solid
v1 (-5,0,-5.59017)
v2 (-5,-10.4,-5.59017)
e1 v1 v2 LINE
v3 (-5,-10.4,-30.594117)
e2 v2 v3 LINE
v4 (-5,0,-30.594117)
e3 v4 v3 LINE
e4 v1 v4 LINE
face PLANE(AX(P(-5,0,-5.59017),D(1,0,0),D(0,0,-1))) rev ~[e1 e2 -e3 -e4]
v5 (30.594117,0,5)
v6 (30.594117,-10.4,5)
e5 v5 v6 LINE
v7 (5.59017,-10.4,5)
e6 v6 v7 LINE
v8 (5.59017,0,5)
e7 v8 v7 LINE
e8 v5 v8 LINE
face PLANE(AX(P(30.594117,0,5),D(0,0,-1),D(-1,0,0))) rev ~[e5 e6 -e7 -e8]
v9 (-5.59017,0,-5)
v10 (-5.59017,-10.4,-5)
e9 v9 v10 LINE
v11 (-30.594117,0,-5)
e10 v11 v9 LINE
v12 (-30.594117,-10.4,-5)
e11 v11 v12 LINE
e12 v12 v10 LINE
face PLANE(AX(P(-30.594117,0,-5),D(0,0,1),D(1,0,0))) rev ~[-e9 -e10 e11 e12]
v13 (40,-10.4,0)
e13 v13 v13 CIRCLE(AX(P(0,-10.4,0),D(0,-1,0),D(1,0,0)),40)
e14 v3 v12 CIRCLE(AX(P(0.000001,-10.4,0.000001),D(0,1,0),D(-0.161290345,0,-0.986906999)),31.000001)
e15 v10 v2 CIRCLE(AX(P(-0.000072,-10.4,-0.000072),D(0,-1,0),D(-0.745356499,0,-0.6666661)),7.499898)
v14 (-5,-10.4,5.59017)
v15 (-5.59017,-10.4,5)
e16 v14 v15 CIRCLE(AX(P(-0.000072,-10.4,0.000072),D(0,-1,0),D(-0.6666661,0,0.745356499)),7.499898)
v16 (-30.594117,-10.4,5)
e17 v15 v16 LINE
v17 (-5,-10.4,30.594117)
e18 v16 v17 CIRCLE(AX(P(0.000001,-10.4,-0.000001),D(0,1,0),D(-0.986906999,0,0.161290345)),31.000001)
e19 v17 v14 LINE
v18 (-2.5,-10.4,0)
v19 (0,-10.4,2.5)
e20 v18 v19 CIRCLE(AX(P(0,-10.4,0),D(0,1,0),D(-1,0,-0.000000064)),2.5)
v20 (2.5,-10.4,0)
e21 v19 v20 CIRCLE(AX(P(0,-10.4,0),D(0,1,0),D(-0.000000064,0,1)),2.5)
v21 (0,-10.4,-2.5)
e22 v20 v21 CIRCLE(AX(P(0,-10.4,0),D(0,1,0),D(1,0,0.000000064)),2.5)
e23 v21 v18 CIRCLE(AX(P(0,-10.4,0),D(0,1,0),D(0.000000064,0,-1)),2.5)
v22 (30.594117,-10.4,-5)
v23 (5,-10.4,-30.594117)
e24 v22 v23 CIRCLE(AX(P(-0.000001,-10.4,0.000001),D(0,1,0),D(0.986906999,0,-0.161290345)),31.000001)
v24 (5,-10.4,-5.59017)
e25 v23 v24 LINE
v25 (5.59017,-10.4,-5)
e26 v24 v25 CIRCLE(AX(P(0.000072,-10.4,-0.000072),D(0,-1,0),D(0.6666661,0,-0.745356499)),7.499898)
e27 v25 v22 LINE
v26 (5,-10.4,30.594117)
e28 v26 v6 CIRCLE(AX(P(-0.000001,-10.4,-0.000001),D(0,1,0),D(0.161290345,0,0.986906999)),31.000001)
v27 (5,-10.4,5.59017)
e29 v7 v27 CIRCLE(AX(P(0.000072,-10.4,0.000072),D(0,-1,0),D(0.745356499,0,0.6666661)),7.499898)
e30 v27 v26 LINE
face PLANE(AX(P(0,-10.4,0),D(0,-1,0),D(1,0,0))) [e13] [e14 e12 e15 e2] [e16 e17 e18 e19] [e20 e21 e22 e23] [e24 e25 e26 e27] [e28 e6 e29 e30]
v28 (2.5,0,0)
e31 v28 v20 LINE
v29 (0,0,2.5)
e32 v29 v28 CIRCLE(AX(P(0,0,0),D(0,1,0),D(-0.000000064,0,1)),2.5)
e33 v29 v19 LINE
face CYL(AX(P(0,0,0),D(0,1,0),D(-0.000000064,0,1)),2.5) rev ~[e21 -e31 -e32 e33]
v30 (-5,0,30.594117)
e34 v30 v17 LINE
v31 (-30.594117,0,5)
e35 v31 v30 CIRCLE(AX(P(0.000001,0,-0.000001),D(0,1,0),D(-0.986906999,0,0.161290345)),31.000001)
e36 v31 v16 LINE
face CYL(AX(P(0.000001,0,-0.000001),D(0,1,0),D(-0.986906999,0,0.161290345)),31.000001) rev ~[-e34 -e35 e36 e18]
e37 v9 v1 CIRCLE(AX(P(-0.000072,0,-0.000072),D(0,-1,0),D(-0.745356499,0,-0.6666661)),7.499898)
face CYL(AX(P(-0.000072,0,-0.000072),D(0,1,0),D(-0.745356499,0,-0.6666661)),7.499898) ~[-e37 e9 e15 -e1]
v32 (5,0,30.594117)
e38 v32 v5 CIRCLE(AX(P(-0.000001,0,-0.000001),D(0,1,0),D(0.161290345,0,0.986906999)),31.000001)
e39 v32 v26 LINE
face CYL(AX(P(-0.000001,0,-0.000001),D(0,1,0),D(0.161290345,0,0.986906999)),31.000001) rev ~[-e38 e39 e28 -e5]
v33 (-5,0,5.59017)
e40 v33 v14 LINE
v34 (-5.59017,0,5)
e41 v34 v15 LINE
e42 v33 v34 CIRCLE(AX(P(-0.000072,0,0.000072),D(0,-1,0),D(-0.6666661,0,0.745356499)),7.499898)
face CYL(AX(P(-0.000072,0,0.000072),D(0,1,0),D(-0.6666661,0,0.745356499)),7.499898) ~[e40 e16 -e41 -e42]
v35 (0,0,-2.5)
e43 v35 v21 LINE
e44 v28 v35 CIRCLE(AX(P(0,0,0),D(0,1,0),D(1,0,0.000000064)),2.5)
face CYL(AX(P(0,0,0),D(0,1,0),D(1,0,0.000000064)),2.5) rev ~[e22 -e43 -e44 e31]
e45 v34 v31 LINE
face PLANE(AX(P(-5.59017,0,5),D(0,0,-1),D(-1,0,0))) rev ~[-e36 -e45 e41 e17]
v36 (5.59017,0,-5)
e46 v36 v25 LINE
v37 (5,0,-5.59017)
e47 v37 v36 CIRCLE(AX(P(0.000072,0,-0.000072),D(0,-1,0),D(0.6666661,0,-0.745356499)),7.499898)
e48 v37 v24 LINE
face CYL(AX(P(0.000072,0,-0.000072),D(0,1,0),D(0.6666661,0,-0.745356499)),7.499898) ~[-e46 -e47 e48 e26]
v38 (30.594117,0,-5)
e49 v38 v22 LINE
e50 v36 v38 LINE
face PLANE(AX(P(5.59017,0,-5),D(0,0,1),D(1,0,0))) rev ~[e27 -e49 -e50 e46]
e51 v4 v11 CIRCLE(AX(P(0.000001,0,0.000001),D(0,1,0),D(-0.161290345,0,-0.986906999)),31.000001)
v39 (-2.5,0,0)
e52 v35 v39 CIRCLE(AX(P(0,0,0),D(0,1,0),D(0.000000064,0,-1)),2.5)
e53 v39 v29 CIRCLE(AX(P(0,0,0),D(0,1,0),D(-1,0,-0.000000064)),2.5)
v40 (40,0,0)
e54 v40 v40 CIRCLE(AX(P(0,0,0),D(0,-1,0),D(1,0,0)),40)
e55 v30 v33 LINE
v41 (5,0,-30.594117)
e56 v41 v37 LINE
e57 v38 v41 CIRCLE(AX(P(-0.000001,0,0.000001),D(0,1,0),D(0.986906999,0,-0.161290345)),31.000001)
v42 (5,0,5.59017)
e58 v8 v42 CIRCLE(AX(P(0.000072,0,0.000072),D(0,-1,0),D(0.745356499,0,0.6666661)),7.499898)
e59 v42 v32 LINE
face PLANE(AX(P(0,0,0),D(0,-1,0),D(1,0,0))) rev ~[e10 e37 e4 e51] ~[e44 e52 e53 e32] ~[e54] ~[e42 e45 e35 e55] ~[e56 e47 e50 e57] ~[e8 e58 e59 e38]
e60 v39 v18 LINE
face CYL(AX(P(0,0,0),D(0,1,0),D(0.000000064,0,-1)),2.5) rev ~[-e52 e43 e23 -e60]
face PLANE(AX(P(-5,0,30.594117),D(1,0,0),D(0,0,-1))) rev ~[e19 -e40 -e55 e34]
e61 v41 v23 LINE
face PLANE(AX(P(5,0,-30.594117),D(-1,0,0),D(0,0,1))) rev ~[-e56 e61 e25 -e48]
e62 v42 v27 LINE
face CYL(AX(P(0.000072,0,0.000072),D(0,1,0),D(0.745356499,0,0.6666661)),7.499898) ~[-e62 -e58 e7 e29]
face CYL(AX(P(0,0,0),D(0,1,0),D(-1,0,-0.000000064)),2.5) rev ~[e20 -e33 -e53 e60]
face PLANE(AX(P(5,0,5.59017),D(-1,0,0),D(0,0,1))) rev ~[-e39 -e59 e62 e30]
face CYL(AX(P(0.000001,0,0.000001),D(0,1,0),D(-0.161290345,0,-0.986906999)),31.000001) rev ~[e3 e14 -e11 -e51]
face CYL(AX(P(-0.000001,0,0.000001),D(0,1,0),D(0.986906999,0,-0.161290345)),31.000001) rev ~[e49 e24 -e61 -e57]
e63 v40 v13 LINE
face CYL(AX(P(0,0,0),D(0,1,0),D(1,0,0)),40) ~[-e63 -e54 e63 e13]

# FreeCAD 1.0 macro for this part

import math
import FreeCAD as App
import Part
import Sketcher

V = App.Vector
Q = App.Units.Quantity

doc = App.newDocument("Part")
body = doc.addObject("PartDesign::Body", "Body")

sketch1 = doc.addObject("Sketcher::SketchObject", "Sketch")
body.addObject(sketch1)
sketch1.AttachmentSupport = (doc.XZ_Plane, [""])
sketch1.MapMode = "FlatFace"
sketch1.addGeometry(Part.Circle(V(0, 0, 0), V(0, 0, 1), 40), False)
sketch1.addGeometry(Part.LineSegment(V(-30.6, -5, 0), V(-5.6, -5, 0)), False)
sketch1.addGeometry(Part.ArcOfCircle(Part.Circle(V(0, 0, 0), V(0, 0, 1), 7.5), math.radians(-138.19), math.radians(-131.81)), False)
sketch1.addGeometry(Part.LineSegment(V(-5, -5.6, 0), V(-5, -30.6, 0)), False)
sketch1.addGeometry(Part.ArcOfCircle(Part.Circle(V(0, 0, 0), V(0, 0, 1), 31), math.radians(-171), math.radians(-99)), False)
sketch1.addGeometry(Part.ArcOfCircle(Part.Circle(V(0, 0, 0), V(0, 0, 1), 2.5), math.radians(90), math.radians(180)), False)
sketch1.addGeometry(Part.ArcOfCircle(Part.Circle(V(0, 0, 0), V(0, 0, 1), 2.5), math.radians(0), math.radians(90)), False)
sketch1.addGeometry(Part.ArcOfCircle(Part.Circle(V(0, 0, 0), V(0, 0, 1), 2.5), math.radians(-90), math.radians(0)), False)
sketch1.addGeometry(Part.ArcOfCircle(Part.Circle(V(0, 0, 0), V(0, 0, 1), 2.5), math.radians(180), math.radians(270)), False)
sketch1.addGeometry(Part.ArcOfCircle(Part.Circle(V(0, 0, 0), V(0, 0, 1), 31), math.radians(-81), math.radians(-9)), False)
sketch1.addGeometry(Part.LineSegment(V(5, -30.6, 0), V(5, -5.6, 0)), False)
sketch1.addGeometry(Part.ArcOfCircle(Part.Circle(V(0, 0, 0), V(0, 0, 1), 7.5), math.radians(-48.19), math.radians(-41.81)), False)
sketch1.addGeometry(Part.LineSegment(V(5.6, -5, 0), V(30.6, -5, 0)), False)
sketch1.addGeometry(Part.LineSegment(V(-5.6, 5, 0), V(-30.6, 5, 0)), False)
sketch1.addGeometry(Part.ArcOfCircle(Part.Circle(V(0, 0, 0), V(0, 0, 1), 31), math.radians(99), math.radians(171)), False)
sketch1.addGeometry(Part.LineSegment(V(-5, 30.6, 0), V(-5, 5.6, 0)), False)
sketch1.addGeometry(Part.ArcOfCircle(Part.Circle(V(0, 0, 0), V(0, 0, 1), 7.5), math.radians(131.81), math.radians(138.19)), False)
sketch1.addGeometry(Part.LineSegment(V(5, 5.6, 0), V(5, 30.6, 0)), False)
sketch1.addGeometry(Part.ArcOfCircle(Part.Circle(V(0, 0, 0), V(0, 0, 1), 31), math.radians(9), math.radians(81)), False)
sketch1.addGeometry(Part.LineSegment(V(30.6, 5, 0), V(5.6, 5, 0)), False)
sketch1.addGeometry(Part.ArcOfCircle(Part.Circle(V(0, 0, 0), V(0, 0, 1), 7.5), math.radians(41.81), math.radians(48.19)), False)
sketch1.addConstraint(Sketcher.Constraint("Coincident", 1, 2, 2, 1))
sketch1.addConstraint(Sketcher.Constraint("Coincident", 2, 2, 3, 1))
sketch1.addConstraint(Sketcher.Constraint("Coincident", 3, 2, 4, 2))
sketch1.addConstraint(Sketcher.Constraint("Coincident", 4, 1, 1, 1))
sketch1.addConstraint(Sketcher.Constraint("Tangent", 5, 1, 6, 2))
sketch1.addConstraint(Sketcher.Constraint("Tangent", 6, 1, 7, 2))
sketch1.addConstraint(Sketcher.Constraint("Tangent", 7, 1, 8, 2))
sketch1.addConstraint(Sketcher.Constraint("Tangent", 8, 1, 5, 2))
sketch1.addConstraint(Sketcher.Constraint("Coincident", 9, 1, 10, 1))
sketch1.addConstraint(Sketcher.Constraint("Coincident", 10, 2, 11, 1))
sketch1.addConstraint(Sketcher.Constraint("Coincident", 11, 2, 12, 1))
sketch1.addConstraint(Sketcher.Constraint("Coincident", 12, 2, 9, 2))
sketch1.addConstraint(Sketcher.Constraint("Coincident", 13, 2, 14, 2))
sketch1.addConstraint(Sketcher.Constraint("Coincident", 14, 1, 15, 1))
sketch1.addConstraint(Sketcher.Constraint("Coincident", 15, 2, 16, 1))
sketch1.addConstraint(Sketcher.Constraint("Coincident", 16, 2, 13, 1))
sketch1.addConstraint(Sketcher.Constraint("Coincident", 17, 2, 18, 2))
sketch1.addConstraint(Sketcher.Constraint("Coincident", 18, 1, 19, 1))
sketch1.addConstraint(Sketcher.Constraint("Coincident", 19, 2, 20, 1))
sketch1.addConstraint(Sketcher.Constraint("Coincident", 20, 2, 17, 1))
sketch1.addConstraint(Sketcher.Constraint("Horizontal", 1))
sketch1.addConstraint(Sketcher.Constraint("Vertical", 3))
sketch1.addConstraint(Sketcher.Constraint("Vertical", 10))
sketch1.addConstraint(Sketcher.Constraint("Horizontal", 12))
sketch1.addConstraint(Sketcher.Constraint("Horizontal", 13))
sketch1.addConstraint(Sketcher.Constraint("Vertical", 15))
sketch1.addConstraint(Sketcher.Constraint("Vertical", 17))
sketch1.addConstraint(Sketcher.Constraint("Horizontal", 19))
sketch1.addConstraint(Sketcher.Constraint("Coincident", 0, 3, -1, 1))
sketch1.addConstraint(Sketcher.Constraint("Coincident", 4, 3, -1, 1))
sketch1.addConstraint(Sketcher.Constraint("Coincident", 5, 3, -1, 1))
sketch1.addConstraint(Sketcher.Constraint("Coincident", 9, 3, -1, 1))
sketch1.addConstraint(Sketcher.Constraint("Coincident", 14, 3, -1, 1))
sketch1.addConstraint(Sketcher.Constraint("Coincident", 18, 3, -1, 1))
sketch1.addConstraint(Sketcher.Constraint("Equal", 5, 6))
sketch1.addConstraint(Sketcher.Constraint("Equal", 4, 9))
sketch1.addConstraint(Sketcher.Constraint("Equal", 2, 11))
sketch1.addConstraint(Sketcher.Constraint("Equal", 9, 14))
sketch1.addConstraint(Sketcher.Constraint("Equal", 11, 16))
sketch1.addConstraint(Sketcher.Constraint("Equal", 14, 18))
sketch1.addConstraint(Sketcher.Constraint("Equal", 16, 20))
sketch1.addConstraint(Sketcher.Constraint("Symmetric", 11, 3, 16, 3, -1, 1))
sketch1.addConstraint(Sketcher.Constraint("Symmetric", 2, 3, 20, 3, -1, 1))
sketch1.addConstraint(Sketcher.Constraint("Symmetric", 2, 3, 11, 3, -2))
sketch1.addConstraint(Sketcher.Constraint("PointOnObject", 5, 1, -2))
sketch1.addConstraint(Sketcher.Constraint("PointOnObject", 6, 1, -1))
sketch1.addConstraint(Sketcher.Constraint("PointOnObject", 7, 1, -2))
sketch1.addConstraint(Sketcher.Constraint("PointOnObject", 8, 1, -1))
sketch1.addConstraint(Sketcher.Constraint("Horizontal", 3, 2, 9, 1))
sketch1.addConstraint(Sketcher.Constraint("Horizontal", 4, 1, 11, 2))
sketch1.addConstraint(Sketcher.Constraint("Horizontal", 14, 1, 17, 2))
sketch1.addConstraint(Sketcher.Constraint("Horizontal", 16, 2, 18, 1))
sketch1.addConstraint(Sketcher.Constraint("Vertical", 4, 1, 13, 2))
sketch1.addConstraint(Sketcher.Constraint("Vertical", 3, 2, 14, 1))
sketch1.addConstraint(Sketcher.Constraint("Equal", 19, 3))
sketch1.addConstraint(Sketcher.Constraint("Diameter", 0, Q("80 mm")))
sketch1.addConstraint(Sketcher.Constraint("Radius", 4, Q("31.000001 mm")))
sketch1.addConstraint(Sketcher.Constraint("Radius", 5, Q("2.5 mm")))
sketch1.addConstraint(Sketcher.Constraint("DistanceY", 1, 2, -1, 1, Q("5 mm")))
sketch1.addConstraint(Sketcher.Constraint("DistanceX", 2, 2, -1, 1, Q("5 mm")))
sketch1.addConstraint(Sketcher.Constraint("Radius", 2, Q("7.499898 mm")))
sketch1.addConstraint(Sketcher.Constraint("DistanceX", 1, 2, 2, 3, Q("5.590098 mm")))
pad1 = doc.addObject("PartDesign::Pad", "Pad")
body.addObject(pad1)
pad1.Profile = sketch1
pad1.Length = 10.4

doc.recompute()
